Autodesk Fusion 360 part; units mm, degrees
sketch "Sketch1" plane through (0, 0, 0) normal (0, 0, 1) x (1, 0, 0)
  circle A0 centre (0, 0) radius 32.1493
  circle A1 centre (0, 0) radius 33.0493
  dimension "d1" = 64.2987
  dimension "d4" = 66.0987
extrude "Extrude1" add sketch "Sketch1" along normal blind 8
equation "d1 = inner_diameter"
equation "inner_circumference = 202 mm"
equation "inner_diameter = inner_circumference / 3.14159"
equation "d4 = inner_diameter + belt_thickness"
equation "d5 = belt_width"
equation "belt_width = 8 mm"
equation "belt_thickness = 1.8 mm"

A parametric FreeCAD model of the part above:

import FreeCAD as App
import Part
import Sketcher
from FreeCAD import Vector
Q = App.Units.Quantity

doc = App.newDocument("Part")
body = doc.addObject("PartDesign::Body", "Body")

# Sketch on XY plane
sketch1 = body.newObject("Sketcher::SketchObject", "Sketch")
sketch1.AttachmentSupport = (doc.getObject("XY_Plane"), [""])
sketch1.MapMode = "FlatFace"
sketch1.addGeometry(Part.Circle(Vector(0, 0, 0), Vector(0, 0, 1), 33), False)
sketch1.addGeometry(Part.Circle(Vector(0, 0, 0), Vector(0, 0, 1), 32), False)
sketch1.addConstraint(Sketcher.Constraint("Coincident", 0, 3, -1, 1))
sketch1.addConstraint(Sketcher.Constraint("Coincident", 1, 3, -1, 1))
sketch1.addConstraint(Sketcher.Constraint("Diameter", 0, Q("66.0986 mm")))
sketch1.addConstraint(Sketcher.Constraint("Diameter", 1, Q("64.2986 mm")))
pad1 = body.newObject("PartDesign::Pad", "Pad")
pad1.Profile = sketch1
pad1.Length = 8

doc.recompute()
